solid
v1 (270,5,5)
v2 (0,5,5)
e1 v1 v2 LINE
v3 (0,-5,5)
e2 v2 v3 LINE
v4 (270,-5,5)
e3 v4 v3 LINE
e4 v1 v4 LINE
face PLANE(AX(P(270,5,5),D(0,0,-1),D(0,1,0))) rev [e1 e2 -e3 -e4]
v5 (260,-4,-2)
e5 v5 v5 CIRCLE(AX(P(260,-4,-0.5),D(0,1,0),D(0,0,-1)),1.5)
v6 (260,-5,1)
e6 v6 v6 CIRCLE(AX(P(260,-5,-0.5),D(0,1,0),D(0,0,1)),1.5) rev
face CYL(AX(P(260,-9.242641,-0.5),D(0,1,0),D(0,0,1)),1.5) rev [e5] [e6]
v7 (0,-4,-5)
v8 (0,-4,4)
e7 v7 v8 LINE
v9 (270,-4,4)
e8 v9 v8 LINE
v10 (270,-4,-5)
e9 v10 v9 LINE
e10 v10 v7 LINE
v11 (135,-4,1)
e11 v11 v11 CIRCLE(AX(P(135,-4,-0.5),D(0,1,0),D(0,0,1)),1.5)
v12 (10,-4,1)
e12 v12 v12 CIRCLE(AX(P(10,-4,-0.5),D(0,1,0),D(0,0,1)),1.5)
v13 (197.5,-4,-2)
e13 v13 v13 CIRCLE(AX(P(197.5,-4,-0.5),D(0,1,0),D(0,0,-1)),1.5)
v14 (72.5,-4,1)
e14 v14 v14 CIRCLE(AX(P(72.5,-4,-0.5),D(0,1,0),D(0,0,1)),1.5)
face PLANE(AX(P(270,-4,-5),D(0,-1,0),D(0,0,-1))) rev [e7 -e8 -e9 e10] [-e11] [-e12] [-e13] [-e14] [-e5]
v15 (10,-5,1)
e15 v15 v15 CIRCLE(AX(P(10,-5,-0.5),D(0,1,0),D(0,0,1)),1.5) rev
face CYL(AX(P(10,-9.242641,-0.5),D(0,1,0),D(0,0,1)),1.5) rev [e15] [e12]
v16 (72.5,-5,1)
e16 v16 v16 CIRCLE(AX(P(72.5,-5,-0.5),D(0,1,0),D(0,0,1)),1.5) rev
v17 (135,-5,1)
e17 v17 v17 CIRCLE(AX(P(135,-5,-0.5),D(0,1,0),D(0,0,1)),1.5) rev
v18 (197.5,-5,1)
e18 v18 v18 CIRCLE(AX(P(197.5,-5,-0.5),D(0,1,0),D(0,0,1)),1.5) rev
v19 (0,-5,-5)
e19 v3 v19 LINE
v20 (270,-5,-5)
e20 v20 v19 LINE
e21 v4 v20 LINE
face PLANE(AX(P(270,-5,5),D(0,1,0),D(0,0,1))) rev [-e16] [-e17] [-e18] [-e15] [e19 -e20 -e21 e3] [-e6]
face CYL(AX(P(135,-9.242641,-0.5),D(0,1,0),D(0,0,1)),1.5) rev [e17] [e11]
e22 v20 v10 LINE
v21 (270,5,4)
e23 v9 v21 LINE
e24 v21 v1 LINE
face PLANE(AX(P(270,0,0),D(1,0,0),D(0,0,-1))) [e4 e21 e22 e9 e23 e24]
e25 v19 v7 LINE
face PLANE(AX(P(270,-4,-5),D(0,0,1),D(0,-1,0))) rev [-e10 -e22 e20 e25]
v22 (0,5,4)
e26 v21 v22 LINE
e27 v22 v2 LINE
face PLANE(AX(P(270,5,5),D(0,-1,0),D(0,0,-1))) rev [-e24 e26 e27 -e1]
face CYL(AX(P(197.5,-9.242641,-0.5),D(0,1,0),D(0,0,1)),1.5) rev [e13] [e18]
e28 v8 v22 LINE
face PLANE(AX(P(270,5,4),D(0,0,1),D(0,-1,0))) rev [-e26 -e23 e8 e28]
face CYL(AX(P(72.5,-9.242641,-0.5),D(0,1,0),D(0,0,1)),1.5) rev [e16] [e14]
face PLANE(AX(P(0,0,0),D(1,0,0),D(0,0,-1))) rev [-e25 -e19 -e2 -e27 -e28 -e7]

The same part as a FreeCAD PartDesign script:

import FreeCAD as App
import Part
import Sketcher
Q = App.Units.Quantity

doc = App.newDocument("Part")
body = doc.addObject("PartDesign::Body", "Body")

sketch1 = body.newObject("Sketcher::SketchObject", "Sketch")
sketch1.AttachmentSupport = (doc.getObject("YZ_Plane"), [""])
sketch1.MapMode = "FlatFace"
sketch1.addGeometry([
    Part.LineSegment(App.Vector(5, 4, 0), App.Vector(5, 5, 0)),
    Part.LineSegment(App.Vector(5, 5, 0), App.Vector(-5, 5, 0)),
    Part.LineSegment(App.Vector(-5, 5, 0), App.Vector(-5, -5, 0)),
    Part.LineSegment(App.Vector(-5, -5, 0), App.Vector(-4, -5, 0)),
    Part.LineSegment(App.Vector(-4, -5, 0), App.Vector(-4, 4, 0)),
    Part.LineSegment(App.Vector(-4, 4, 0), App.Vector(5, 4, 0)),
], False)
sketch1.addConstraint([
    Sketcher.Constraint("Coincident", 0, 2, 1, 1),
    Sketcher.Constraint("Coincident", 1, 2, 2, 1),
    Sketcher.Constraint("Coincident", 2, 2, 3, 1),
    Sketcher.Constraint("Coincident", 3, 2, 4, 1),
    Sketcher.Constraint("Coincident", 4, 2, 5, 1),
    Sketcher.Constraint("Coincident", 5, 2, 0, 1),
    Sketcher.Constraint("Vertical", 0),
    Sketcher.Constraint("Horizontal", 1),
    Sketcher.Constraint("Vertical", 2),
    Sketcher.Constraint("Horizontal", 3),
    Sketcher.Constraint("Vertical", 4),
    Sketcher.Constraint("Horizontal", 5),
    Sketcher.Constraint("Symmetric", 0, 2, 2, 2, -1, 1),
    Sketcher.Constraint("Equal", 3, 0),
    Sketcher.Constraint("Equal", 1, 2),
    Sketcher.Constraint("DistanceX", 1, 2, 1, 1, Q("10 mm")),
    Sketcher.Constraint("DistanceX", 3, 1, 3, 2, Q("1 mm")),
])
pad1 = body.newObject("PartDesign::Pad", "Pad")
pad1.Profile = sketch1
pad1.Length = 270

sketch2 = body.newObject("Sketcher::SketchObject", "Sketch001")
sketch2.AttachmentSupport = (doc.getObject("XZ_Plane"), [""])
sketch2.MapMode = "FlatFace"
sketch2.AttachmentOffset = App.Placement(App.Vector(0, 0, 4), App.Rotation())
sketch2.addGeometry([
    Part.Circle(App.Vector(135, -0.5, 0), App.Vector(0, 0, 1), 1.5),
    Part.Circle(App.Vector(72.5, -0.5, 0), App.Vector(0, 0, 1), 1.5),
    Part.Circle(App.Vector(10, -0.5, 0), App.Vector(0, 0, 1), 1.5),
    Part.Circle(App.Vector(260, -0.5, 0), App.Vector(0, 0, 1), 1.5),
    Part.Circle(App.Vector(197.5, -0.5, 0), App.Vector(0, 0, 1), 1.5),
], False)
sketch2.addConstraint([
    Sketcher.Constraint("Equal", 0, 1),
    Sketcher.Constraint("Equal", 1, 2),
    Sketcher.Constraint("Equal", 2, 3),
    Sketcher.Constraint("Equal", 3, 4),
    Sketcher.Constraint("Horizontal", 0, 3, 1, 3),
    Sketcher.Constraint("Horizontal", 1, 3, 2, 3),
    Sketcher.Constraint("Horizontal", 2, 3, 3, 3),
    Sketcher.Constraint("Horizontal", 3, 3, 4, 3),
    Sketcher.Constraint("Diameter", 0, Q("3 mm")),
    Sketcher.Constraint("DistanceX", -1, 1, 0, 3, Q("135 mm")),
    Sketcher.Constraint("DistanceX", -1, 1, 2, 3, Q("10 mm")),
    Sketcher.Constraint("DistanceX", -1, 1, 3, 3, Q("260 mm")),
    Sketcher.Constraint("DistanceX", 1, 3, 4, 3, Q("125 mm")),
    Sketcher.Constraint("DistanceY", 0, 3, -1, 1, Q("0.5 mm")),
    Sketcher.Constraint("DistanceX", -1, 1, 1, 3, Q("72.5 mm")),
])
pocket1 = body.newObject("PartDesign::Pocket", "Pocket")
pocket1.Profile = sketch2
pocket1.Length = 1
pocket1.Reversed = True

doc.recompute()
